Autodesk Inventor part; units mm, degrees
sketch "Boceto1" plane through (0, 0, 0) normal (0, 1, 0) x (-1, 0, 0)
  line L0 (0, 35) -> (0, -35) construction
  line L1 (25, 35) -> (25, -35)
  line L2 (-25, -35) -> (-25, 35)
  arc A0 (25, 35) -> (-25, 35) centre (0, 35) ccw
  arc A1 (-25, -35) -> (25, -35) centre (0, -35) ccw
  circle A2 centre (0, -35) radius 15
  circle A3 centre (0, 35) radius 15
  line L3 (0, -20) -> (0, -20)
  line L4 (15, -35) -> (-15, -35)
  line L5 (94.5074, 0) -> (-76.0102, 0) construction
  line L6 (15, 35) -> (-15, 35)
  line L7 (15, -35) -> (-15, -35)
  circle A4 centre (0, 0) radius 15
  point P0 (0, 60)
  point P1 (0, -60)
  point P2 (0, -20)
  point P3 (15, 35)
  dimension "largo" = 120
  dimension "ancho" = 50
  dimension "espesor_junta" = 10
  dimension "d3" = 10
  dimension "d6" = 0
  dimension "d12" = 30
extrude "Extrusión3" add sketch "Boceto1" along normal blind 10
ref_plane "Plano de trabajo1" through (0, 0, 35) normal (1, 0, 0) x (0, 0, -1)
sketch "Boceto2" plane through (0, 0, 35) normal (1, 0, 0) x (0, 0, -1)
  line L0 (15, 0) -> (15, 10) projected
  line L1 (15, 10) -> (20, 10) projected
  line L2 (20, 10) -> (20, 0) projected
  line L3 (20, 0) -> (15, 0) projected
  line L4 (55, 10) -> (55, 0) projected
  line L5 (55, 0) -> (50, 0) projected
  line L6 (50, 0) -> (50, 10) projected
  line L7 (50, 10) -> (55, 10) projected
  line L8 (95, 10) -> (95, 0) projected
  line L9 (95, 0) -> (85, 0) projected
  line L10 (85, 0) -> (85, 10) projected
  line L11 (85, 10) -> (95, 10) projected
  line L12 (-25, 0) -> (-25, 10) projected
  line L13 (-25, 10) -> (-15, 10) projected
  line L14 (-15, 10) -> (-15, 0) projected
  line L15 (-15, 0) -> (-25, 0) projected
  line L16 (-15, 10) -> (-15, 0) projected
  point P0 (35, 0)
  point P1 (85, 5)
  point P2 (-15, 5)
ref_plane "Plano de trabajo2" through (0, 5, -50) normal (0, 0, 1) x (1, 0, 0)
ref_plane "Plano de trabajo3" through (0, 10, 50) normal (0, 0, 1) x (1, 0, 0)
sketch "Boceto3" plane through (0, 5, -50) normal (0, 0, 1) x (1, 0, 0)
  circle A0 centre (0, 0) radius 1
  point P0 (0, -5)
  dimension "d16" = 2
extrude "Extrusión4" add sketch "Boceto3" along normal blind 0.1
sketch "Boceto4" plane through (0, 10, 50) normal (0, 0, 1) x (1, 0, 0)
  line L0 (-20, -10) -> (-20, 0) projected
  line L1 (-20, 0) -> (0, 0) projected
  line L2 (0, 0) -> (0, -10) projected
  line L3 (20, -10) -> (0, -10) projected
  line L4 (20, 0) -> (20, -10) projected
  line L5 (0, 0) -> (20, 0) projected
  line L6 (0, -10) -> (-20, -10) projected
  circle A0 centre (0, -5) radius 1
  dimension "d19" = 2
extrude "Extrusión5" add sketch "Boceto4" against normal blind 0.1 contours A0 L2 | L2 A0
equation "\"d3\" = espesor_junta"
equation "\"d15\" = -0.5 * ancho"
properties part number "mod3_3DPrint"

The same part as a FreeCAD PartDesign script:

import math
import FreeCAD as App
import Part
import Sketcher
from FreeCAD import Vector
Q = App.Units.Quantity

doc = App.newDocument("Part")
params = doc.addObject("Spreadsheet::Sheet", "Params")
for row, (alias, value) in enumerate([
    ("sketch1_diameter", "30 mm"),
    ("sketch1_radius", "25 mm"),
    ("sketch1_height", "70 mm"),
    ("pad1_length", "10 mm"),
    ("sketch2_diameter", "2 mm"),
    ("pad2_length", "0.1 mm"),
    ("sketch3_diameter", "2 mm"),
    ("pad3_length", "0.1 mm"),
], start=1):
    params.set(f"A{row}", alias)
    params.set(f"B{row}", "=" + value)
    params.setAlias(f"B{row}", alias)

body = doc.addObject("PartDesign::Body", "Body")

# Sketch on XZ plane
sketch1 = body.newObject("Sketcher::SketchObject", "Sketch")
sketch1.AttachmentSupport = (doc.getObject("XZ_Plane"), [""])
sketch1.MapMode = "FlatFace"
sketch1.addGeometry([
    Part.LineSegment(Vector(-25, -35, 0), Vector(-25, 35, 0)),  # 0
    Part.ArcOfCircle(Part.Circle(Vector(0, 35, 0), Vector(0, 0, 1), 25), math.radians(0), math.radians(180)),  # 1
    Part.LineSegment(Vector(25, 35, 0), Vector(25, -35, 0)),  # 2
    Part.ArcOfCircle(Part.Circle(Vector(0, -35, 0), Vector(0, 0, 1), 25), math.radians(180), math.radians(360)),  # 3
    Part.Circle(Vector(0, -35, 0), Vector(0, 0, 1), 15),  # 4
    Part.Circle(Vector(0, 0, 0), Vector(0, 0, 1), 15),  # 5
    Part.Circle(Vector(0, 35, 0), Vector(0, 0, 1), 15),  # 6
], False)
sketch1.addConstraint([
    Sketcher.Constraint("Tangent", 0, 2, 1, 2),
    Sketcher.Constraint("Tangent", 1, 1, 2, 1),
    Sketcher.Constraint("Tangent", 2, 2, 3, 2),
    Sketcher.Constraint("Tangent", 3, 1, 0, 1),
    Sketcher.Constraint("Vertical", 0),
    Sketcher.Constraint("Vertical", 2),
    Sketcher.Constraint("Coincident", 5, 3, -1, 1),
    Sketcher.Constraint("Coincident", 4, 3, 3, 3),
    Sketcher.Constraint("Coincident", 6, 3, 1, 3),
    Sketcher.Constraint("Equal", 4, 5),
    Sketcher.Constraint("Equal", 5, 6),
    Sketcher.Constraint("Symmetric", 1, 3, 3, 3, -1, 1),
    Sketcher.Constraint("Diameter", 4, Q("30 mm")),
    Sketcher.Constraint("Radius", 1, Q("25 mm")),
    Sketcher.Constraint("DistanceY", 0, 1, 0, 2, Q("70 mm")),
])
sketch1.setExpression("Constraints[12]", "Params.sketch1_diameter")
sketch1.setExpression("Constraints[13]", "Params.sketch1_radius")
sketch1.setExpression("Constraints[14]", "Params.sketch1_height")
pad1 = body.newObject("PartDesign::Pad", "Pad")
pad1.Profile = sketch1
pad1.setExpression("Length", "Params.pad1_length")
pad1.Reversed = True

# Sketch on XY plane
sketch2 = body.newObject("Sketcher::SketchObject", "Sketch001")
sketch2.AttachmentSupport = (doc.getObject("XY_Plane"), [""])
sketch2.MapMode = "FlatFace"
sketch2.AttachmentOffset = App.Placement(Vector(0, 0, -50), App.Rotation())
sketch2.addGeometry(Part.Circle(Vector(0, 5, 0), Vector(0, 0, 1), 1), False)
sketch2.addConstraint([
    Sketcher.Constraint("PointOnObject", 0, 3, -2),
    Sketcher.Constraint("Diameter", 0, Q("2 mm")),
    Sketcher.Constraint("DistanceY", -1, 1, 0, 3, Q("5 mm")),
])
sketch2.setExpression("Constraints[1]", "Params.sketch2_diameter")
pad2 = body.newObject("PartDesign::Pad", "Pad001")
pad2.Profile = sketch2
pad2.setExpression("Length", "Params.pad2_length")

# Sketch on XY plane
sketch3 = body.newObject("Sketcher::SketchObject", "Sketch002")
sketch3.AttachmentSupport = (doc.getObject("XY_Plane"), [""])
sketch3.MapMode = "FlatFace"
sketch3.AttachmentOffset = App.Placement(Vector(0, 0, 50), App.Rotation())
sketch3.addGeometry(Part.Circle(Vector(0, 5, 0), Vector(0, 0, 1), 1), False)
sketch3.addConstraint([
    Sketcher.Constraint("PointOnObject", 0, 3, -2),
    Sketcher.Constraint("Diameter", 0, Q("2 mm")),
    Sketcher.Constraint("DistanceY", -1, 1, 0, 3, Q("5 mm")),
])
sketch3.setExpression("Constraints[1]", "Params.sketch3_diameter")
pad3 = body.newObject("PartDesign::Pad", "Pad002")
pad3.Profile = sketch3
pad3.setExpression("Length", "Params.pad3_length")
pad3.Reversed = True

doc.recompute()
